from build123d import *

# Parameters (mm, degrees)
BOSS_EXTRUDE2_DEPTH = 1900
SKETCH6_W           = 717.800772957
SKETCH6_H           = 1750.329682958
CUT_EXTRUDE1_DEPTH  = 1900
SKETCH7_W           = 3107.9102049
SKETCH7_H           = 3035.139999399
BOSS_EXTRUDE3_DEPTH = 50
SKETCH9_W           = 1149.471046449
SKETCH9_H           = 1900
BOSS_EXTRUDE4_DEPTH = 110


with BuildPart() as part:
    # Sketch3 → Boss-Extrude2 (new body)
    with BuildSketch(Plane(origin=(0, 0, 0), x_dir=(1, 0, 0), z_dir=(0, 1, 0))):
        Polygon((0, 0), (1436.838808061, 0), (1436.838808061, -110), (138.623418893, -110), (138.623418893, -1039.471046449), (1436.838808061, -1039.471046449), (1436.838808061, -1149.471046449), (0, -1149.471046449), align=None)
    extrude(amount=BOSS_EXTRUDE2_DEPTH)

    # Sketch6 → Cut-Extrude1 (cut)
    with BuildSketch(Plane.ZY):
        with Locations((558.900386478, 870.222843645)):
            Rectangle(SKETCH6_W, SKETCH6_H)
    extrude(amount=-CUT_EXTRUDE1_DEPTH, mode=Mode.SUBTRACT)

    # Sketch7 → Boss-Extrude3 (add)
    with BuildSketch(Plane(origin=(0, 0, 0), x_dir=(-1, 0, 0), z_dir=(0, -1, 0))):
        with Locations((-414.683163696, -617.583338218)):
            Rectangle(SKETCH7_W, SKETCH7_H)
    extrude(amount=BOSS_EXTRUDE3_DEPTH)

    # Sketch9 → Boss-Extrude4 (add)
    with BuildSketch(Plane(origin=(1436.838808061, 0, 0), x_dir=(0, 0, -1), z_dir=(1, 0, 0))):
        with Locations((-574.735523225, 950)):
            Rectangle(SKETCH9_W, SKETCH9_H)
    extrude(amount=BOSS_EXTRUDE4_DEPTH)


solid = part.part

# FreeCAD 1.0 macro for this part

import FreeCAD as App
import Part
import Sketcher
from FreeCAD import Vector

doc = App.newDocument("Part")
body = doc.addObject("PartDesign::Body", "Body")

# Sketch on XZ plane
sketch1 = body.newObject("Sketcher::SketchObject", "Sketch")
sketch1.AttachmentSupport = (doc.getObject("XZ_Plane"), [""])
sketch1.MapMode = "FlatFace"
sketch1.addGeometry(Part.LineSegment(Vector(1437, 0, 0), Vector(0, 0, 0)), False)
sketch1.addGeometry(Part.LineSegment(Vector(0, 0, 0), Vector(0, 1149, 0)), False)
sketch1.addGeometry(Part.LineSegment(Vector(0, 1149, 0), Vector(1437, 1149, 0)), False)
sketch1.addGeometry(Part.LineSegment(Vector(1437, 1149, 0), Vector(1437, 1039, 0)), False)
sketch1.addGeometry(Part.LineSegment(Vector(1437, 1039, 0), Vector(139, 1039, 0)), False)
sketch1.addGeometry(Part.LineSegment(Vector(139, 1039, 0), Vector(139, 110, 0)), False)
sketch1.addGeometry(Part.LineSegment(Vector(139, 110, 0), Vector(1437, 110, 0)), False)
sketch1.addGeometry(Part.LineSegment(Vector(1437, 110, 0), Vector(1437, 0, 0)), False)
sketch1.addConstraint(Sketcher.Constraint("Coincident", 0, 2, 1, 1))
sketch1.addConstraint(Sketcher.Constraint("Coincident", 1, 2, 2, 1))
sketch1.addConstraint(Sketcher.Constraint("Coincident", 2, 2, 3, 1))
sketch1.addConstraint(Sketcher.Constraint("Coincident", 3, 2, 4, 1))
sketch1.addConstraint(Sketcher.Constraint("Coincident", 4, 2, 5, 1))
sketch1.addConstraint(Sketcher.Constraint("Coincident", 5, 2, 6, 1))
sketch1.addConstraint(Sketcher.Constraint("Coincident", 6, 2, 7, 1))
sketch1.addConstraint(Sketcher.Constraint("Coincident", 7, 2, 0, 1))
sketch1.addConstraint(Sketcher.Constraint("Horizontal", 0))
sketch1.addConstraint(Sketcher.Constraint("Vertical", 1))
sketch1.addConstraint(Sketcher.Constraint("Horizontal", 2))
sketch1.addConstraint(Sketcher.Constraint("Vertical", 3))
sketch1.addConstraint(Sketcher.Constraint("Horizontal", 4))
sketch1.addConstraint(Sketcher.Constraint("Vertical", 5))
sketch1.addConstraint(Sketcher.Constraint("Horizontal", 6))
sketch1.addConstraint(Sketcher.Constraint("Vertical", 7))
sketch1.addConstraint(Sketcher.Constraint("Coincident", 0, 2, -1, 1))
sketch1.addConstraint(Sketcher.Constraint("Vertical", 3, 2, 6, 2))
sketch1.addConstraint(Sketcher.Constraint("Equal", 3, 7))
sketch1.addConstraint(Sketcher.Constraint("DistanceY", 3, 2, 3, 1, 110.0))
sketch1.addConstraint(Sketcher.Constraint("DistanceX", 0, 2, 0, 1, 1436.838808))
sketch1.addConstraint(Sketcher.Constraint("DistanceX", 4, 2, 4, 1, 1298.215389))
sketch1.addConstraint(Sketcher.Constraint("DistanceY", 1, 1, 1, 2, 1149.471046))
pad1 = body.newObject("PartDesign::Pad", "Pad")
pad1.Profile = sketch1
pad1.Length = 1900
pad1.Reversed = True

# Sketch on YZ plane
sketch2 = body.newObject("Sketcher::SketchObject", "Sketch001")
sketch2.AttachmentSupport = (doc.getObject("YZ_Plane"), [""])
sketch2.MapMode = "FlatFace"
sketch2.addGeometry(Part.LineSegment(Vector(1745, 200, 0), Vector(-5, 200, 0)), False)
sketch2.addGeometry(Part.LineSegment(Vector(-5, 200, 0), Vector(-5, 918, 0)), False)
sketch2.addGeometry(Part.LineSegment(Vector(-5, 918, 0), Vector(1745, 918, 0)), False)
sketch2.addGeometry(Part.LineSegment(Vector(1745, 918, 0), Vector(1745, 200, 0)), False)
sketch2.addConstraint(Sketcher.Constraint("Coincident", 0, 2, 1, 1))
sketch2.addConstraint(Sketcher.Constraint("Coincident", 1, 2, 2, 1))
sketch2.addConstraint(Sketcher.Constraint("Coincident", 2, 2, 3, 1))
sketch2.addConstraint(Sketcher.Constraint("Coincident", 3, 2, 0, 1))
sketch2.addConstraint(Sketcher.Constraint("Horizontal", 0))
sketch2.addConstraint(Sketcher.Constraint("Vertical", 1))
sketch2.addConstraint(Sketcher.Constraint("Horizontal", 2))
sketch2.addConstraint(Sketcher.Constraint("Vertical", 3))
sketch2.addConstraint(Sketcher.Constraint("DistanceY", -1, 1, 0, 2, 200.0))
sketch2.addConstraint(Sketcher.Constraint("DistanceX", 0, 2, 0, 1, 1750.329683))
sketch2.addConstraint(Sketcher.Constraint("DistanceY", 1, 1, 1, 2, 717.800773))
sketch2.addConstraint(Sketcher.Constraint("DistanceX", 0, 2, -1, 1, 4.941998))
pocket1 = body.newObject("PartDesign::Pocket", "Pocket")
pocket1.Profile = sketch2
pocket1.Length = 1900
pocket1.Reversed = True

# Sketch on XZ plane
sketch3 = body.newObject("Sketcher::SketchObject", "Sketch002")
sketch3.AttachmentSupport = (doc.getObject("XZ_Plane"), [""])
sketch3.MapMode = "FlatFace"
sketch3.addGeometry(Part.LineSegment(Vector(1969, -900, 0), Vector(1969, 2135, 0)), False)
sketch3.addGeometry(Part.LineSegment(Vector(1969, 2135, 0), Vector(-1139, 2135, 0)), False)
sketch3.addGeometry(Part.LineSegment(Vector(-1139, 2135, 0), Vector(-1139, -900, 0)), False)
sketch3.addGeometry(Part.LineSegment(Vector(-1139, -900, 0), Vector(1969, -900, 0)), False)
sketch3.addConstraint(Sketcher.Constraint("Coincident", 0, 2, 1, 1))
sketch3.addConstraint(Sketcher.Constraint("Coincident", 1, 2, 2, 1))
sketch3.addConstraint(Sketcher.Constraint("Coincident", 2, 2, 3, 1))
sketch3.addConstraint(Sketcher.Constraint("Coincident", 3, 2, 0, 1))
sketch3.addConstraint(Sketcher.Constraint("Vertical", 0))
sketch3.addConstraint(Sketcher.Constraint("Horizontal", 1))
sketch3.addConstraint(Sketcher.Constraint("Vertical", 2))
sketch3.addConstraint(Sketcher.Constraint("Horizontal", 3))
sketch3.addConstraint(Sketcher.Constraint("DistanceY", 0, 1, 0, 2, 3035.139999))
sketch3.addConstraint(Sketcher.Constraint("DistanceX", 1, 2, 1, 1, 3107.910205))
sketch3.addConstraint(Sketcher.Constraint("DistanceX", 1, 2, -1, 1, 1139.271939))
sketch3.addConstraint(Sketcher.Constraint("DistanceY", 2, 2, -1, 1, 899.986661))
pad2 = body.newObject("PartDesign::Pad", "Pad001")
pad2.Profile = sketch3
pad2.Length = 50

# Sketch on YZ plane
sketch4 = body.newObject("Sketcher::SketchObject", "Sketch003")
sketch4.AttachmentSupport = (doc.getObject("YZ_Plane"), [""])
sketch4.MapMode = "FlatFace"
sketch4.AttachmentOffset = App.Placement(Vector(0, 0, 1436.838808), App.Rotation())
sketch4.addGeometry(Part.LineSegment(Vector(1900, 1149, 0), Vector(0, 1149, 0)), False)
sketch4.addGeometry(Part.LineSegment(Vector(0, 1149, 0), Vector(0, 0, 0)), False)
sketch4.addGeometry(Part.LineSegment(Vector(0, 0, 0), Vector(1900, 0, 0)), False)
sketch4.addGeometry(Part.LineSegment(Vector(1900, 0, 0), Vector(1900, 1149, 0)), False)
sketch4.addConstraint(Sketcher.Constraint("Coincident", 0, 2, 1, 1))
sketch4.addConstraint(Sketcher.Constraint("Coincident", 1, 2, 2, 1))
sketch4.addConstraint(Sketcher.Constraint("Coincident", 2, 2, 3, 1))
sketch4.addConstraint(Sketcher.Constraint("Coincident", 3, 2, 0, 1))
sketch4.addConstraint(Sketcher.Constraint("Horizontal", 0))
sketch4.addConstraint(Sketcher.Constraint("Vertical", 1))
sketch4.addConstraint(Sketcher.Constraint("Horizontal", 2))
sketch4.addConstraint(Sketcher.Constraint("Vertical", 3))
sketch4.addConstraint(Sketcher.Constraint("Coincident", 1, 2, -1, 1))
sketch4.addConstraint(Sketcher.Constraint("DistanceX", 0, 2, 0, 1, 1900.0))
sketch4.addConstraint(Sketcher.Constraint("DistanceY", 1, 2, 1, 1, 1149.471046))
pad3 = body.newObject("PartDesign::Pad", "Pad002")
pad3.Profile = sketch4
pad3.Length = 110

doc.recompute()
